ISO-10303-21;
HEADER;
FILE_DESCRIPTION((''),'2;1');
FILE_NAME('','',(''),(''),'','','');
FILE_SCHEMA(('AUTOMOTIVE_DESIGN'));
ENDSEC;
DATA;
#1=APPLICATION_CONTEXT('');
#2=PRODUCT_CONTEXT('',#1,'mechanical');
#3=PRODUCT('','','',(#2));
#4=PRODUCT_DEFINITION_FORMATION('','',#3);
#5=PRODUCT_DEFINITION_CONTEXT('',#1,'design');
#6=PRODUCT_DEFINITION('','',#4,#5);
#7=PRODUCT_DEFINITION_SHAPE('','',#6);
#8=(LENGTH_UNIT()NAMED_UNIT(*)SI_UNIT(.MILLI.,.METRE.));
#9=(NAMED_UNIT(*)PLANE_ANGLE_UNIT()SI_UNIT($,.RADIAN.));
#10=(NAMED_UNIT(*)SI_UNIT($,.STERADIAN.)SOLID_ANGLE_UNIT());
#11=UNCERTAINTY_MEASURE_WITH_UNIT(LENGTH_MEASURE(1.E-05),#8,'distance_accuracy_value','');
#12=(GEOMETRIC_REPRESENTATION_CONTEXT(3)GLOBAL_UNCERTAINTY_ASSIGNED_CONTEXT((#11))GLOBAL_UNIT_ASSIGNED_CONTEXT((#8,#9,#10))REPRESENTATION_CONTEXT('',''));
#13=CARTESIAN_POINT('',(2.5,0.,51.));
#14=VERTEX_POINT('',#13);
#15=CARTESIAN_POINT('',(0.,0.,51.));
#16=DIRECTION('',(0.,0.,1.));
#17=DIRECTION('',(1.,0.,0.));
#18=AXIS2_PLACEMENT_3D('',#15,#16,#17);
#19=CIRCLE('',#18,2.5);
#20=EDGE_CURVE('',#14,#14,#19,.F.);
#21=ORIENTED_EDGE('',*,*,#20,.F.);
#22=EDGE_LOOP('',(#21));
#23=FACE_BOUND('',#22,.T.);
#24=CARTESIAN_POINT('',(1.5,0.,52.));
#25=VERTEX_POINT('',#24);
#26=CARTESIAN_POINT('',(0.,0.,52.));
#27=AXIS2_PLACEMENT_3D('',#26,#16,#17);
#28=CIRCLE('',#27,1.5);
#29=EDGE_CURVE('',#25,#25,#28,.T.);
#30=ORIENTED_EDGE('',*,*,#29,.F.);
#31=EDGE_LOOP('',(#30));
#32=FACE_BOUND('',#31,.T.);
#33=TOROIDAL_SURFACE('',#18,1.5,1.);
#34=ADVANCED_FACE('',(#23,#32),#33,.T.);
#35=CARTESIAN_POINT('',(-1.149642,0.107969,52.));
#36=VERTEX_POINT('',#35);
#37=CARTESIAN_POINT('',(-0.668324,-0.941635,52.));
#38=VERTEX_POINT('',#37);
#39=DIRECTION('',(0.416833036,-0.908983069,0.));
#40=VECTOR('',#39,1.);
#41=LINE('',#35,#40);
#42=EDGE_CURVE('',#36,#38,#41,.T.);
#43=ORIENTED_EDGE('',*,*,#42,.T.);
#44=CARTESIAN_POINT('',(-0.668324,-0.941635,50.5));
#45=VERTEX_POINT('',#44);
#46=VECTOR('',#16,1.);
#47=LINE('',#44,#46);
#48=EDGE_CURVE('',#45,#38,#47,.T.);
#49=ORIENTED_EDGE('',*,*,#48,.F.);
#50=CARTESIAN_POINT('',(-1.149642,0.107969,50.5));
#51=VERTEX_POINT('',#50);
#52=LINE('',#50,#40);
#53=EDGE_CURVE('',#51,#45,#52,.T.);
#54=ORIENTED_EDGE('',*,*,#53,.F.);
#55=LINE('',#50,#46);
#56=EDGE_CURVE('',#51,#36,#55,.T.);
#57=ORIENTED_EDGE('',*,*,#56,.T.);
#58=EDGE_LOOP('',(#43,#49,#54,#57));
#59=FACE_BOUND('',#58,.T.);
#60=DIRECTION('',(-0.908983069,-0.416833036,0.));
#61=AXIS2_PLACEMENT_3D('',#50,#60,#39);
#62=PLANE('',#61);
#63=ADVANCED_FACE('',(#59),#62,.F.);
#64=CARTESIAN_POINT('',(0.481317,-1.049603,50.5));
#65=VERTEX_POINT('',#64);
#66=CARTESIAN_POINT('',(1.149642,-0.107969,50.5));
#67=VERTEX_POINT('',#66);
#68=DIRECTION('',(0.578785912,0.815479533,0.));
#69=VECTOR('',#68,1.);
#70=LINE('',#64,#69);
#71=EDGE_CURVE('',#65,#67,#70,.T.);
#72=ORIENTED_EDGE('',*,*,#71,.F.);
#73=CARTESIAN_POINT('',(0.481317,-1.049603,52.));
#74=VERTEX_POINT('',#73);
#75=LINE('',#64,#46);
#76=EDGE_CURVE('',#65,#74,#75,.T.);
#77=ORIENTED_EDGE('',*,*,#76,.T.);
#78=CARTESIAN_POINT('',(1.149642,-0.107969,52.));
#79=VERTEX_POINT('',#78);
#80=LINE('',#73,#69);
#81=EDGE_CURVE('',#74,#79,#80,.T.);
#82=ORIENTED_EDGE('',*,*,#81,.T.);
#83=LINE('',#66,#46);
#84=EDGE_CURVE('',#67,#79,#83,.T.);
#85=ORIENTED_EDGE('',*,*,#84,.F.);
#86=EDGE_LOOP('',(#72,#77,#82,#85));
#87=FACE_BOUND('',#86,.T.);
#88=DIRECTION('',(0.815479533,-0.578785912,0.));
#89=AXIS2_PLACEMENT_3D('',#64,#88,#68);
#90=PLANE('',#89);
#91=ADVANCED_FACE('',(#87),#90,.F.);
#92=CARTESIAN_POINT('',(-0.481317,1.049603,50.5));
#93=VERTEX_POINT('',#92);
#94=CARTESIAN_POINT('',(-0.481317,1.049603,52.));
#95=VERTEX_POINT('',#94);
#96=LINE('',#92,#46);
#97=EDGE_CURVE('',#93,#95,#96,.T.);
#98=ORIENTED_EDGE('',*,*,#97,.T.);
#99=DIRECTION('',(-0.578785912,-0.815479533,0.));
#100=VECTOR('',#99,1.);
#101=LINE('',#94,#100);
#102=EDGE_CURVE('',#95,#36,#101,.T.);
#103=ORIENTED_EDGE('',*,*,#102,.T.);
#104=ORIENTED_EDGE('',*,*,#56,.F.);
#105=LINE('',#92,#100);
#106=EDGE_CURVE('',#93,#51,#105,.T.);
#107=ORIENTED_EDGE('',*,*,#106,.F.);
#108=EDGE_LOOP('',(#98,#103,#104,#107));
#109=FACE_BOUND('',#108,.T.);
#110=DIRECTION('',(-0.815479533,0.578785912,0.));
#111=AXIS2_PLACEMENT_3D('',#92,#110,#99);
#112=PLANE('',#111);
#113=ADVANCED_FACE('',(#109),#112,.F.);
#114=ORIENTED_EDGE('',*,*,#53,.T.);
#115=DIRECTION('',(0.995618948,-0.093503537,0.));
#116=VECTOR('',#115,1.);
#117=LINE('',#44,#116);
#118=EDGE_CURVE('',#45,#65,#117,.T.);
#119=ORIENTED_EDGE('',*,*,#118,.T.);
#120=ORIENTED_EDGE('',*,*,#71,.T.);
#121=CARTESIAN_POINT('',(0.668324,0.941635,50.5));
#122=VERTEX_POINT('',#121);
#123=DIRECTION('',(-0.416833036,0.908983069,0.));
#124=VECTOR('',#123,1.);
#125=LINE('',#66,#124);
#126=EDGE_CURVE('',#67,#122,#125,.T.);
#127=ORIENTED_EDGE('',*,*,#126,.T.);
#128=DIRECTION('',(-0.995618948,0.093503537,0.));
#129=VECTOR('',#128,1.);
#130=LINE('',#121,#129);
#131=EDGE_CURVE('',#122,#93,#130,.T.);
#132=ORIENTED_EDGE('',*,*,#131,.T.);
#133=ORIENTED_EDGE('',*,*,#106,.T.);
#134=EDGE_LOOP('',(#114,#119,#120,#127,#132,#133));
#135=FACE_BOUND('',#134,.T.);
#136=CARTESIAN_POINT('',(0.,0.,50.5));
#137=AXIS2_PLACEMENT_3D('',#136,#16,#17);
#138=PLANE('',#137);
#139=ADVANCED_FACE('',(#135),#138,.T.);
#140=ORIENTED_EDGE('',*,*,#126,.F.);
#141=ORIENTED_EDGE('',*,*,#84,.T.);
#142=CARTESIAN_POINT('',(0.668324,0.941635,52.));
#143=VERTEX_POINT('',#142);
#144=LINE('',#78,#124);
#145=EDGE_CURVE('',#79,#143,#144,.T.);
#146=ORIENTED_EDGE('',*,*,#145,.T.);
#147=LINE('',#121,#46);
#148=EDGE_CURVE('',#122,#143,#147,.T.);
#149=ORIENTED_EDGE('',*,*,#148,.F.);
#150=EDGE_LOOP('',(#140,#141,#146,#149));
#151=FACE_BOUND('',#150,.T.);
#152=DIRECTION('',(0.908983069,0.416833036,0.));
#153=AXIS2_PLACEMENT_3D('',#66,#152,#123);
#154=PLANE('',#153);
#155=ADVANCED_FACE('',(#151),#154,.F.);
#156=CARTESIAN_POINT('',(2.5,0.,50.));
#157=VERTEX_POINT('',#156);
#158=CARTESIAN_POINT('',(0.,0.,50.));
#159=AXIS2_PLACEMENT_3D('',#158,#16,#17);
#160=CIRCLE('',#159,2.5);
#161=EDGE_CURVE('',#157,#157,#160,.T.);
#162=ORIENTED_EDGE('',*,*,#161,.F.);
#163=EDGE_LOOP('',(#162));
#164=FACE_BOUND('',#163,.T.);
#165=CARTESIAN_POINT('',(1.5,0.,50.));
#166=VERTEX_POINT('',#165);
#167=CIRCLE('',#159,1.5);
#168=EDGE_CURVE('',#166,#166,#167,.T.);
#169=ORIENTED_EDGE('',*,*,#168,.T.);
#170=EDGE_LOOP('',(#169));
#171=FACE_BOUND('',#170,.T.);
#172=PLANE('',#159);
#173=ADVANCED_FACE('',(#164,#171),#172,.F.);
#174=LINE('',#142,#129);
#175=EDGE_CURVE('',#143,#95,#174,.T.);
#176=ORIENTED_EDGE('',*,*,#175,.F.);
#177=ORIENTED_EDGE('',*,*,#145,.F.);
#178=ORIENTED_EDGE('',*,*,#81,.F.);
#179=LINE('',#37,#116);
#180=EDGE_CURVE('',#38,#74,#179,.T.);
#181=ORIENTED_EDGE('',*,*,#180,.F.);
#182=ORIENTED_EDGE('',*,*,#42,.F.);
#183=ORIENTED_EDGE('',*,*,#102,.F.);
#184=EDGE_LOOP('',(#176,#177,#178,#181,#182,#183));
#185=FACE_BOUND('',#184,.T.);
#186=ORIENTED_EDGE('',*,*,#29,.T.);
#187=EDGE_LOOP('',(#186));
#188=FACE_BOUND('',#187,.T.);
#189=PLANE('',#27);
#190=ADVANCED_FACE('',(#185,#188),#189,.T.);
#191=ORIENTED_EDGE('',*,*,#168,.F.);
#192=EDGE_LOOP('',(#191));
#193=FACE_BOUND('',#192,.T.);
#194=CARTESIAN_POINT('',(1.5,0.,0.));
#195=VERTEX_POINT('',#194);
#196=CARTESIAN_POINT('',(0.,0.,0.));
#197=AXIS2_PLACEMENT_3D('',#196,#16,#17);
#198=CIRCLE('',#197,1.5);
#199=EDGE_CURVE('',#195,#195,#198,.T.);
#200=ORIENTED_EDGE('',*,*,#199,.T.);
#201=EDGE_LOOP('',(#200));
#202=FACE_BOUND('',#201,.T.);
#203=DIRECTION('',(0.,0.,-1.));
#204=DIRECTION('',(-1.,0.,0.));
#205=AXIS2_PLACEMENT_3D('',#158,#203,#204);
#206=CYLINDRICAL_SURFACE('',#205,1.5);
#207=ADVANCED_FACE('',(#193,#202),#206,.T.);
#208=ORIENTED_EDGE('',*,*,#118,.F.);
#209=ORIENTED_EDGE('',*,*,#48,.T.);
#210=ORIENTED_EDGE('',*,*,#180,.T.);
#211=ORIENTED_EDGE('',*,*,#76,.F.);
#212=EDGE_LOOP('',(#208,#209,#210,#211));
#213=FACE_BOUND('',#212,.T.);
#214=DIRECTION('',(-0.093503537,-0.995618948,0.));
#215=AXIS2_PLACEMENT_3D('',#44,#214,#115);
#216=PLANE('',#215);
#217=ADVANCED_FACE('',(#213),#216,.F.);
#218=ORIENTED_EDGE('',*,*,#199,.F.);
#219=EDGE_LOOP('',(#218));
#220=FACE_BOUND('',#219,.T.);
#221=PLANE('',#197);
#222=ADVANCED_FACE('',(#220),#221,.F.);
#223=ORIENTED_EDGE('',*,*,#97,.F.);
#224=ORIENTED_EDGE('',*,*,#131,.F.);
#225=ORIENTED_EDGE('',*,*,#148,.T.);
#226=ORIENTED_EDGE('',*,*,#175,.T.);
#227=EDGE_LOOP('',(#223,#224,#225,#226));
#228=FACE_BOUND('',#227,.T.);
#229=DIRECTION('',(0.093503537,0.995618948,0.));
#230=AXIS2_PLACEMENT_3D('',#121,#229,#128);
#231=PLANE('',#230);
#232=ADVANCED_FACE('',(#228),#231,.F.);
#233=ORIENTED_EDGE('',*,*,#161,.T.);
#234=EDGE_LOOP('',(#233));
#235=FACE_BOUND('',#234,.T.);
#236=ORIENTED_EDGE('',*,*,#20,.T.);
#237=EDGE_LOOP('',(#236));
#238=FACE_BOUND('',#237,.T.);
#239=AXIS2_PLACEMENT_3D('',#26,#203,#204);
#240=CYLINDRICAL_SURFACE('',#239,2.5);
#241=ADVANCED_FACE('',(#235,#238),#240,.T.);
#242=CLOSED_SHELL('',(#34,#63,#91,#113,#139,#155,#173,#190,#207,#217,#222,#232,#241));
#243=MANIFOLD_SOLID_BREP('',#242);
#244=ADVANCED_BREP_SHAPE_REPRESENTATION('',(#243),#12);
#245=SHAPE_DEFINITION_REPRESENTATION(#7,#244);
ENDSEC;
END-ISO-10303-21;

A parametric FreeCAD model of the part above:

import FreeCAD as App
import Part
import Sketcher


def edges_at(feature, points):
    """Names of the edges that pass closest to the given points."""
    edges = feature.Shape.Edges
    near = lambda p: min(range(len(edges)), key=lambda i: edges[i].distToShape(Part.Vertex(*p))[0])
    return sorted({f"Edge{near(p) + 1}" for p in points})


def add_polygon(sketch, points):
    """Adds a closed chain of lines whose ends are joined by coincident constraints."""
    first, n = sketch.GeometryCount, len(points)
    for a, b in zip(points, points[1:] + points[:1]):
        sketch.addGeometry(Part.LineSegment(App.Vector(*a, 0), App.Vector(*b, 0)), False)
    for i in range(n):
        sketch.addConstraint(Sketcher.Constraint("Coincident", first + i, 2, first + (i + 1) % n, 1))

doc = App.newDocument("Part")
params = doc.addObject("Spreadsheet::Sheet", "Params")
for row, (alias, value) in enumerate([
    ("sketch1_diameter", "3 mm"),
    ("pad1_length", "50 mm"),
    ("sketch2_diameter", "5 mm"),
    ("pad2_length", "2 mm"),
    ("pocket1_length", "1.5 mm"),
    ("fillet_radius", "1 mm"),
], start=1):
    params.set(f"A{row}", alias)
    params.set(f"B{row}", "=" + value)
    params.setAlias(f"B{row}", alias)

body = doc.addObject("PartDesign::Body", "Body")

# Sketch on XY plane
sketch1 = doc.addObject("Sketcher::SketchObject", "Sketch")
body.addObject(sketch1)
sketch1.AttachmentSupport = (doc.XY_Plane, [""])
sketch1.MapMode = "FlatFace"
sketch1.addGeometry(Part.Circle(App.Vector(0, 0, 0), App.Vector(0, 0, 1), 1.5), False)
sketch1.addConstraint(Sketcher.Constraint("Coincident", 0, 3, -1, 1))
sketch1.addConstraint(Sketcher.Constraint("Diameter", 0, 3.0))
sketch1.setExpression("Constraints[1]", "Params.sketch1_diameter")
pad1 = doc.addObject("PartDesign::Pad", "Pad")
body.addObject(pad1)
pad1.Profile = sketch1
pad1.setExpression("Length", "Params.pad1_length")

# Sketch on XY plane
sketch2 = doc.addObject("Sketcher::SketchObject", "Sketch001")
body.addObject(sketch2)
sketch2.AttachmentSupport = (doc.XY_Plane, [""])
sketch2.MapMode = "FlatFace"
sketch2.AttachmentOffset = App.Placement(App.Vector(0, 0, 50), App.Rotation())
sketch2.addGeometry(Part.Circle(App.Vector(0, 0, 0), App.Vector(0, 0, 1), 2.5), False)
sketch2.addConstraint(Sketcher.Constraint("Coincident", 0, 3, -1, 1))
sketch2.addConstraint(Sketcher.Constraint("Diameter", 0, 5.0))
sketch2.setExpression("Constraints[1]", "Params.sketch2_diameter")
pad2 = doc.addObject("PartDesign::Pad", "Pad001")
body.addObject(pad2)
pad2.Profile = sketch2
pad2.setExpression("Length", "Params.pad2_length")

# Sketch on XY plane
sketch3 = doc.addObject("Sketcher::SketchObject", "Sketch002")
body.addObject(sketch3)
sketch3.AttachmentSupport = (doc.XY_Plane, [""])
sketch3.MapMode = "FlatFace"
sketch3.AttachmentOffset = App.Placement(App.Vector(0, 0, 52), App.Rotation())
add_polygon(sketch3, [(1.1, -0.1), (0.7, 0.9), (-0.5, 1), (-1.1, 0.1), (-0.7, -0.9), (0.5, -1)])  # lines 0-5
sketch3.addConstraint(Sketcher.Constraint("Symmetric", 0, 2, 3, 2, -1, 1))
sketch3.addConstraint(Sketcher.Constraint("Symmetric", 1, 2, 4, 2, -1, 1))
sketch3.addConstraint(Sketcher.Constraint("Symmetric", 2, 2, 5, 2, -1, 1))
sketch3.addConstraint(Sketcher.Constraint("Equal", 0, 1))
sketch3.addConstraint(Sketcher.Constraint("Equal", 1, 2))
sketch3.addConstraint(Sketcher.Constraint("Distance", 0, 1.154701))
sketch3.addConstraint(Sketcher.Constraint("DistanceX", 2, 2, -1, 1, 1.149642))
sketch3.addConstraint(Sketcher.Constraint("DistanceY", -1, 1, 2, 2, 0.107969))
sketch3.addConstraint(Sketcher.Constraint("DistanceX", 1, 2, 0, 2, 1.149642))
pocket1 = doc.addObject("PartDesign::Pocket", "Pocket")
body.addObject(pocket1)
pocket1.Profile = sketch3
pocket1.setExpression("Length", "Params.pocket1_length")
doc.recompute()

fillet = doc.addObject("PartDesign::Fillet", "Fillet")
body.addObject(fillet)
fillet.Base = (pocket1, edges_at(pocket1, [(-2.5, 0, 52)]))
fillet.setExpression("Radius", "Params.fillet_radius")

doc.recompute()
